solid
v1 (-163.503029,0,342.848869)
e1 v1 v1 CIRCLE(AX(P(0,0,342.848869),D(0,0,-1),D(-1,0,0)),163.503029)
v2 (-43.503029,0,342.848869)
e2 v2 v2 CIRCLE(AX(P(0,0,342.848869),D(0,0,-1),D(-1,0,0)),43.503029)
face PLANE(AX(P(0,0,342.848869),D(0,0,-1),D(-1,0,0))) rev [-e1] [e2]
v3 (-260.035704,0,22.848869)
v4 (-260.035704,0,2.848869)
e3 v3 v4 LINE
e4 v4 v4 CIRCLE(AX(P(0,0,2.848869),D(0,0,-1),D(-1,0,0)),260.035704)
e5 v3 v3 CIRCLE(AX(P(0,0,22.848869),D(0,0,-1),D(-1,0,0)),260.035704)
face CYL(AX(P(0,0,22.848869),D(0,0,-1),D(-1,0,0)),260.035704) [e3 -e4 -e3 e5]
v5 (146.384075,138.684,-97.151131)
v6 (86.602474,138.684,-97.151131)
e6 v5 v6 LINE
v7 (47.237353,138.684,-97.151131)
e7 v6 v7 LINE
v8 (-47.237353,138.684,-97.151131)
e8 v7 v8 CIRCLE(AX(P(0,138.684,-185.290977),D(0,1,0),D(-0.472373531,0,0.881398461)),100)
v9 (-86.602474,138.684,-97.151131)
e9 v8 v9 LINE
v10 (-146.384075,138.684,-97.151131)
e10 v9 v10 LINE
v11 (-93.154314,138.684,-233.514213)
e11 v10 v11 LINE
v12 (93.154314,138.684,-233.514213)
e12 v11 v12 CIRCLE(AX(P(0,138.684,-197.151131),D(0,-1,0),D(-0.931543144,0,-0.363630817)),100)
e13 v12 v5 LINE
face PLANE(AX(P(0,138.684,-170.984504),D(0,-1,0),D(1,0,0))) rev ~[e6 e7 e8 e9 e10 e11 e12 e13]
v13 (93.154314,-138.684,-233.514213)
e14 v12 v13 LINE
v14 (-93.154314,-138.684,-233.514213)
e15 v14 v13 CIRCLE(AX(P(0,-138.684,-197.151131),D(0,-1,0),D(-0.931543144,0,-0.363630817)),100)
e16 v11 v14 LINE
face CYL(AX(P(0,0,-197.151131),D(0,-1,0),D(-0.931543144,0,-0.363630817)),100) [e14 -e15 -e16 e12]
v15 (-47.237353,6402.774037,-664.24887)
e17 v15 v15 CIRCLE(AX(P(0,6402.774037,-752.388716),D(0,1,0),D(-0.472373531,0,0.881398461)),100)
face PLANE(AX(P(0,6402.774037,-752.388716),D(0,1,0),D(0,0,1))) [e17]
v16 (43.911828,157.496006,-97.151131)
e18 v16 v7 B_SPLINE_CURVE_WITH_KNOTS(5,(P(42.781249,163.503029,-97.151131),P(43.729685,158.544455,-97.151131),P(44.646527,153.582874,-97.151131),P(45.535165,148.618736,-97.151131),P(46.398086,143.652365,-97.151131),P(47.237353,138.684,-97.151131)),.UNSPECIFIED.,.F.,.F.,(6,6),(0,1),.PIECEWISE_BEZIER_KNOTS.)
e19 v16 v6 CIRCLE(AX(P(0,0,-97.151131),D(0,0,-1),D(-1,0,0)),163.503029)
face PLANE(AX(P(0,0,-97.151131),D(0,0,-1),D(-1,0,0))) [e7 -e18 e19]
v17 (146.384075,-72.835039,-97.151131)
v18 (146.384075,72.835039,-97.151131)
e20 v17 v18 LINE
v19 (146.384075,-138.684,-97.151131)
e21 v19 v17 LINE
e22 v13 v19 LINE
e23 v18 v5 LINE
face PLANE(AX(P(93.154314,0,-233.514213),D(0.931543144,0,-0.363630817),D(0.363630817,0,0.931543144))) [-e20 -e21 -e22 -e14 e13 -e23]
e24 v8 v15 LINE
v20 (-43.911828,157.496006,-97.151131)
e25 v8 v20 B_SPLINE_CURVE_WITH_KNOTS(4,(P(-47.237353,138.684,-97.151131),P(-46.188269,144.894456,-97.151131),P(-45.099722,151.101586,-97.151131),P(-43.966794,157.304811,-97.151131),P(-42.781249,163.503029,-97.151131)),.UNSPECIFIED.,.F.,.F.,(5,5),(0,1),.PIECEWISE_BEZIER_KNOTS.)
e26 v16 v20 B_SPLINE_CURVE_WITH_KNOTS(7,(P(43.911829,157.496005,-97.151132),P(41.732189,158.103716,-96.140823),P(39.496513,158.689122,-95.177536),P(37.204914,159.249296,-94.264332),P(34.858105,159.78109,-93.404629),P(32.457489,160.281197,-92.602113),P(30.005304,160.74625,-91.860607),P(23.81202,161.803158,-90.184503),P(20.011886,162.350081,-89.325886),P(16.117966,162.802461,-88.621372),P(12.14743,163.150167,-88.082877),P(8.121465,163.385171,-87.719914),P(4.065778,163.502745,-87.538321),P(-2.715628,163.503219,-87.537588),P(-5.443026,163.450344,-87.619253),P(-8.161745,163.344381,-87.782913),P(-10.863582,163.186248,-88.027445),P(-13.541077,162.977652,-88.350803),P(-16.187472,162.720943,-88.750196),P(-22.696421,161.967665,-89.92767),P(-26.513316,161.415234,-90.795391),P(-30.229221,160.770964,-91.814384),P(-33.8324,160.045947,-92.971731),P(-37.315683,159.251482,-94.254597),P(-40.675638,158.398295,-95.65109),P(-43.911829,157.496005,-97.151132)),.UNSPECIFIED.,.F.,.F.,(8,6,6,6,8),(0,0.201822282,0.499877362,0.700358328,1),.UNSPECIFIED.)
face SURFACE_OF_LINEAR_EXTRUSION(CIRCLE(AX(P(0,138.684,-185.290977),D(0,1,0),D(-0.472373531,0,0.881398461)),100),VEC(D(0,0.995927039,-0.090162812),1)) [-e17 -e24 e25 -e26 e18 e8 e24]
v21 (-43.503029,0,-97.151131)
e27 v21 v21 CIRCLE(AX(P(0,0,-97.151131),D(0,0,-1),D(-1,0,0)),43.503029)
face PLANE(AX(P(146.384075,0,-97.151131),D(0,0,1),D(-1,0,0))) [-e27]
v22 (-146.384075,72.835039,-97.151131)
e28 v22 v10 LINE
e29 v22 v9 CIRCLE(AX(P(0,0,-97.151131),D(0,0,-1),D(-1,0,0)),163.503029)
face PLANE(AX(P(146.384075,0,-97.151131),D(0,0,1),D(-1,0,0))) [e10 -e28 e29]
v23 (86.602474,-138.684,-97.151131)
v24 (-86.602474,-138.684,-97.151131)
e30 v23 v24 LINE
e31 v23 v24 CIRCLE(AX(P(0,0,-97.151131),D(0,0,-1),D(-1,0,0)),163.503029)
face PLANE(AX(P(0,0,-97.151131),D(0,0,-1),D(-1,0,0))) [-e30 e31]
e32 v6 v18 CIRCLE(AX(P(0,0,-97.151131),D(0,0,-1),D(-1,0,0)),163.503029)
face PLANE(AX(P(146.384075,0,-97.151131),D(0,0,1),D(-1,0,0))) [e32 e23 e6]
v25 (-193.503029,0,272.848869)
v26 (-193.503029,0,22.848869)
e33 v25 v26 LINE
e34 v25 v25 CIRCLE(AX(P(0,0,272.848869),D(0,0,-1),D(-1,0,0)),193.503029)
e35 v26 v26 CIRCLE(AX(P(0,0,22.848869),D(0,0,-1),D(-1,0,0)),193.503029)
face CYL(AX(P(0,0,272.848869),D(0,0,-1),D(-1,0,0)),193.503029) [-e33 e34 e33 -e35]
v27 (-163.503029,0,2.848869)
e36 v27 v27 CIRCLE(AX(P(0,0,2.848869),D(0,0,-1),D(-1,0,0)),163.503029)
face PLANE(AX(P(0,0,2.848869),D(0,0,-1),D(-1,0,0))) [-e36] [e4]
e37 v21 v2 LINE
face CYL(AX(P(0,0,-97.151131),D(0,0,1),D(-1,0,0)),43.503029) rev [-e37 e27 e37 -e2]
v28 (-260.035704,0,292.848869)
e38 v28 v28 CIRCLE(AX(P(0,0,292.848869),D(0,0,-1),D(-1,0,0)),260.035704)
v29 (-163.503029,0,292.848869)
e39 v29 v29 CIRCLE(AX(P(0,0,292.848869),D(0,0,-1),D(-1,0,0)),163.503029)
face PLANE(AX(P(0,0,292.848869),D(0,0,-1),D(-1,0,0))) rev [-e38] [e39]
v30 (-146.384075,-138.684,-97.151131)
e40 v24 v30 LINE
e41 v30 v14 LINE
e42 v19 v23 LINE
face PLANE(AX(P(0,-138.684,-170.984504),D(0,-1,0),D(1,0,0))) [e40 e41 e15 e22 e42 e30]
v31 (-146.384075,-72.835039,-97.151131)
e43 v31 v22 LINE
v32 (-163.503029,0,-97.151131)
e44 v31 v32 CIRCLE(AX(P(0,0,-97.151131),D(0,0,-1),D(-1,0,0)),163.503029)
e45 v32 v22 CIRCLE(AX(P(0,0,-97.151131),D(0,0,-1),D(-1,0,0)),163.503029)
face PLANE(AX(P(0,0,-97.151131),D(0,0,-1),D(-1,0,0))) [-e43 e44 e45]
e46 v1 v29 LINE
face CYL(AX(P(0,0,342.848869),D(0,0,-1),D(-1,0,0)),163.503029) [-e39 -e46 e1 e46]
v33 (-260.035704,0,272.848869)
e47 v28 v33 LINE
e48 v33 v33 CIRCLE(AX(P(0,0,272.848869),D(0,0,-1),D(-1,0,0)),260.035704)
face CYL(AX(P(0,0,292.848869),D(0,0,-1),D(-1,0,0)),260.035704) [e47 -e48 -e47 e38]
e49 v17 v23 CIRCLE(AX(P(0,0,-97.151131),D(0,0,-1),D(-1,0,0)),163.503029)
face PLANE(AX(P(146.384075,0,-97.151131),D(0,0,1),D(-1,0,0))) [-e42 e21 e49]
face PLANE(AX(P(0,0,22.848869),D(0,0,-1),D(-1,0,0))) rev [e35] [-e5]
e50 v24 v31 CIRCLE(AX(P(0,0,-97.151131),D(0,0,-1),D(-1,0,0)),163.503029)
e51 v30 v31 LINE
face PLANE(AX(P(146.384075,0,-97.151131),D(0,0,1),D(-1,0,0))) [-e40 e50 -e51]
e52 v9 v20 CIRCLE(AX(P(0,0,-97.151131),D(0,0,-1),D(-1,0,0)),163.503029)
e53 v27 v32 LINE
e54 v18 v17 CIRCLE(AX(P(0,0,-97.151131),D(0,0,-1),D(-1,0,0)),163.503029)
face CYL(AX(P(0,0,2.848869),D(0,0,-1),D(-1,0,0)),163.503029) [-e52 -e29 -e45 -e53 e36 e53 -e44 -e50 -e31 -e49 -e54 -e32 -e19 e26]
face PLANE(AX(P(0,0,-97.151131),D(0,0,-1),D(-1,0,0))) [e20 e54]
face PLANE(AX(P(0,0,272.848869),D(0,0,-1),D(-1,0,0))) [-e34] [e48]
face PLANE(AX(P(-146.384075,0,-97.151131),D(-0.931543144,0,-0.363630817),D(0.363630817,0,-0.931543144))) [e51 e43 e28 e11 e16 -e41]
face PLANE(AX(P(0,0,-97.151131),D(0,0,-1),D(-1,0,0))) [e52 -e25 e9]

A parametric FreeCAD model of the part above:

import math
import FreeCAD as App
import Part
import Sketcher
from FreeCAD import Vector


def add_polygon(sketch, points):
    """Adds a closed chain of lines whose ends are joined by coincident constraints."""
    first, n = sketch.GeometryCount, len(points)
    for a, b in zip(points, points[1:] + points[:1]):
        sketch.addGeometry(Part.LineSegment(App.Vector(*a, 0), App.Vector(*b, 0)), False)
    for i in range(n):
        sketch.addConstraint(Sketcher.Constraint("Coincident", first + i, 2, first + (i + 1) % n, 1))

doc = App.newDocument("Part")
body = doc.addObject("PartDesign::Body", "Body")

# Sketch on XZ plane
sketch1 = body.newObject("Sketcher::SketchObject", "Sketch")
sketch1.AttachmentSupport = (doc.getObject("XZ_Plane"), [""])
sketch1.MapMode = "FlatFace"
add_polygon(sketch1, [(-44, -97), (-44, 343), (-164, 343), (-164, 293), (-260, 293), (-260, 273), (-194, 273), (-194, 23), (-260, 23), (-260, 3), (-164, 3), (-164, -97)])  # lines 0-11
sketch1.addConstraint([
    Sketcher.Constraint("Vertical", 0),
    Sketcher.Constraint("Horizontal", 1),
    Sketcher.Constraint("Vertical", 2),
    Sketcher.Constraint("Horizontal", 3),
    Sketcher.Constraint("Vertical", 4),
    Sketcher.Constraint("Horizontal", 5),
    Sketcher.Constraint("Vertical", 6),
    Sketcher.Constraint("Horizontal", 7),
    Sketcher.Constraint("Vertical", 8),
    Sketcher.Constraint("Horizontal", 9),
    Sketcher.Constraint("Vertical", 10),
    Sketcher.Constraint("Horizontal", 11),
    Sketcher.Constraint("Vertical", 4, 2, 7, 2),
    Sketcher.Constraint("Vertical", 2, 2, 9, 2),
    Sketcher.Constraint("Equal", 4, 8),
    Sketcher.Constraint("DistanceX", 1, 2, 1, 1, 120.0),
    Sketcher.Constraint("DistanceY", 0, 1, 0, 2, 440.0),
    Sketcher.Constraint("DistanceY", 2, 2, 2, 1, 50.0),
    Sketcher.Constraint("DistanceY", 4, 2, 4, 1, 20.0),
    Sketcher.Constraint("DistanceY", 6, 2, 6, 1, 250.0),
    Sketcher.Constraint("DistanceX", 5, 2, 2, 2, 30.0),
    Sketcher.Constraint("DistanceX", 3, 2, 3, 1, 96.532675),
    Sketcher.Constraint("DistanceX", 0, 2, -1, 1, 43.503029),
    Sketcher.Constraint("DistanceY", -1, 1, 0, 2, 342.848869),
])
revolution = body.newObject("PartDesign::Revolution", "Revolution")
revolution.Profile = sketch1
revolution.ReferenceAxis = (sketch1, ["V_Axis"])
revolution.Angle = 360

# Sketch on XZ plane
sketch2 = body.newObject("Sketcher::SketchObject", "Sketch001")
sketch2.AttachmentSupport = (doc.getObject("XZ_Plane"), [""])
sketch2.MapMode = "FlatFace"
sketch2.addGeometry([
    Part.LineSegment(Vector(-146, -97, 0), Vector(-93, -234, 0)),
    Part.ArcOfCircle(Part.Circle(Vector(0, -197, 0), Vector(0, 0, 1), 100), math.radians(-159), math.radians(-21)),
    Part.LineSegment(Vector(93, -234, 0), Vector(146, -97, 0)),
    Part.LineSegment(Vector(146, -97, 0), Vector(-146, -97, 0)),
], False)
sketch2.addConstraint([
    Sketcher.Constraint("Tangent", 0, 2, 1, 1),
    Sketcher.Constraint("Tangent", 1, 2, 2, 1),
    Sketcher.Constraint("Coincident", 2, 2, 3, 1),
    Sketcher.Constraint("Coincident", 3, 2, 0, 1),
    Sketcher.Constraint("Horizontal", 3),
    Sketcher.Constraint("Symmetric", 0, 2, 1, 2, -2),
    Sketcher.Constraint("Radius", 1, 100.0),
    Sketcher.Constraint("DistanceY", 1, 3, 2, 2, 100.0),
    Sketcher.Constraint("DistanceX", 3, 2, 3, 1, 292.768151),
    Sketcher.Constraint("DistanceY", 1, 3, -1, 1, 197.151131),
])
pad1 = body.newObject("PartDesign::Pad", "Pad")
pad1.Profile = sketch2
pad1.Length = 277.368
pad1.Midplane = True

# Sketch on XZ plane
sketch3 = body.newObject("Sketcher::SketchObject", "Sketch002")
sketch3.AttachmentSupport = (doc.getObject("XZ_Plane"), [""])
sketch3.MapMode = "FlatFace"
sketch3.AttachmentOffset = App.Placement(Vector(0, 0, -138.684), App.Rotation())
sketch3.addGeometry(Part.Circle(Vector(0, -185, 0), Vector(0, 0, 1), 100), False)
sketch3.addConstraint([
    Sketcher.Constraint("PointOnObject", 0, 3, -2),
    Sketcher.Constraint("Diameter", 0, 200.0),
    Sketcher.Constraint("DistanceY", 0, 3, -1, 1, 185.290977),
])

# Sketch on an angled plane
sketch4 = body.newObject("Sketcher::SketchObject", "Sketch003")
sketch4.Placement = App.Placement(Vector(0, -15.207249, -167.977353), App.Rotation(Vector(0, 0.995927039, -0.090162812), Vector(1, 0, 0), Vector(0, -0.090162812, -0.995927039), "ZXY"))
sketch4.addGeometry(Part.LineSegment(Vector(192, 0, 0), Vector(6482, 0, 0)), False)
sketch4.addConstraint([
    Sketcher.Constraint("Horizontal", 0),
    Sketcher.Constraint("PointOnObject", 0, 1, -1),
    Sketcher.Constraint("DistanceX", 0, 1, 0, 2, 6289.707768),
    Sketcher.Constraint("DistanceX", -1, 1, 0, 2, 6481.733991),
])
doc.recompute()

additivepipe = body.newObject("PartDesign::AdditivePipe", "AdditivePipe")
additivepipe.Profile = sketch3
additivepipe.Spine = (sketch4, ["Edge1"])

doc.recompute()
